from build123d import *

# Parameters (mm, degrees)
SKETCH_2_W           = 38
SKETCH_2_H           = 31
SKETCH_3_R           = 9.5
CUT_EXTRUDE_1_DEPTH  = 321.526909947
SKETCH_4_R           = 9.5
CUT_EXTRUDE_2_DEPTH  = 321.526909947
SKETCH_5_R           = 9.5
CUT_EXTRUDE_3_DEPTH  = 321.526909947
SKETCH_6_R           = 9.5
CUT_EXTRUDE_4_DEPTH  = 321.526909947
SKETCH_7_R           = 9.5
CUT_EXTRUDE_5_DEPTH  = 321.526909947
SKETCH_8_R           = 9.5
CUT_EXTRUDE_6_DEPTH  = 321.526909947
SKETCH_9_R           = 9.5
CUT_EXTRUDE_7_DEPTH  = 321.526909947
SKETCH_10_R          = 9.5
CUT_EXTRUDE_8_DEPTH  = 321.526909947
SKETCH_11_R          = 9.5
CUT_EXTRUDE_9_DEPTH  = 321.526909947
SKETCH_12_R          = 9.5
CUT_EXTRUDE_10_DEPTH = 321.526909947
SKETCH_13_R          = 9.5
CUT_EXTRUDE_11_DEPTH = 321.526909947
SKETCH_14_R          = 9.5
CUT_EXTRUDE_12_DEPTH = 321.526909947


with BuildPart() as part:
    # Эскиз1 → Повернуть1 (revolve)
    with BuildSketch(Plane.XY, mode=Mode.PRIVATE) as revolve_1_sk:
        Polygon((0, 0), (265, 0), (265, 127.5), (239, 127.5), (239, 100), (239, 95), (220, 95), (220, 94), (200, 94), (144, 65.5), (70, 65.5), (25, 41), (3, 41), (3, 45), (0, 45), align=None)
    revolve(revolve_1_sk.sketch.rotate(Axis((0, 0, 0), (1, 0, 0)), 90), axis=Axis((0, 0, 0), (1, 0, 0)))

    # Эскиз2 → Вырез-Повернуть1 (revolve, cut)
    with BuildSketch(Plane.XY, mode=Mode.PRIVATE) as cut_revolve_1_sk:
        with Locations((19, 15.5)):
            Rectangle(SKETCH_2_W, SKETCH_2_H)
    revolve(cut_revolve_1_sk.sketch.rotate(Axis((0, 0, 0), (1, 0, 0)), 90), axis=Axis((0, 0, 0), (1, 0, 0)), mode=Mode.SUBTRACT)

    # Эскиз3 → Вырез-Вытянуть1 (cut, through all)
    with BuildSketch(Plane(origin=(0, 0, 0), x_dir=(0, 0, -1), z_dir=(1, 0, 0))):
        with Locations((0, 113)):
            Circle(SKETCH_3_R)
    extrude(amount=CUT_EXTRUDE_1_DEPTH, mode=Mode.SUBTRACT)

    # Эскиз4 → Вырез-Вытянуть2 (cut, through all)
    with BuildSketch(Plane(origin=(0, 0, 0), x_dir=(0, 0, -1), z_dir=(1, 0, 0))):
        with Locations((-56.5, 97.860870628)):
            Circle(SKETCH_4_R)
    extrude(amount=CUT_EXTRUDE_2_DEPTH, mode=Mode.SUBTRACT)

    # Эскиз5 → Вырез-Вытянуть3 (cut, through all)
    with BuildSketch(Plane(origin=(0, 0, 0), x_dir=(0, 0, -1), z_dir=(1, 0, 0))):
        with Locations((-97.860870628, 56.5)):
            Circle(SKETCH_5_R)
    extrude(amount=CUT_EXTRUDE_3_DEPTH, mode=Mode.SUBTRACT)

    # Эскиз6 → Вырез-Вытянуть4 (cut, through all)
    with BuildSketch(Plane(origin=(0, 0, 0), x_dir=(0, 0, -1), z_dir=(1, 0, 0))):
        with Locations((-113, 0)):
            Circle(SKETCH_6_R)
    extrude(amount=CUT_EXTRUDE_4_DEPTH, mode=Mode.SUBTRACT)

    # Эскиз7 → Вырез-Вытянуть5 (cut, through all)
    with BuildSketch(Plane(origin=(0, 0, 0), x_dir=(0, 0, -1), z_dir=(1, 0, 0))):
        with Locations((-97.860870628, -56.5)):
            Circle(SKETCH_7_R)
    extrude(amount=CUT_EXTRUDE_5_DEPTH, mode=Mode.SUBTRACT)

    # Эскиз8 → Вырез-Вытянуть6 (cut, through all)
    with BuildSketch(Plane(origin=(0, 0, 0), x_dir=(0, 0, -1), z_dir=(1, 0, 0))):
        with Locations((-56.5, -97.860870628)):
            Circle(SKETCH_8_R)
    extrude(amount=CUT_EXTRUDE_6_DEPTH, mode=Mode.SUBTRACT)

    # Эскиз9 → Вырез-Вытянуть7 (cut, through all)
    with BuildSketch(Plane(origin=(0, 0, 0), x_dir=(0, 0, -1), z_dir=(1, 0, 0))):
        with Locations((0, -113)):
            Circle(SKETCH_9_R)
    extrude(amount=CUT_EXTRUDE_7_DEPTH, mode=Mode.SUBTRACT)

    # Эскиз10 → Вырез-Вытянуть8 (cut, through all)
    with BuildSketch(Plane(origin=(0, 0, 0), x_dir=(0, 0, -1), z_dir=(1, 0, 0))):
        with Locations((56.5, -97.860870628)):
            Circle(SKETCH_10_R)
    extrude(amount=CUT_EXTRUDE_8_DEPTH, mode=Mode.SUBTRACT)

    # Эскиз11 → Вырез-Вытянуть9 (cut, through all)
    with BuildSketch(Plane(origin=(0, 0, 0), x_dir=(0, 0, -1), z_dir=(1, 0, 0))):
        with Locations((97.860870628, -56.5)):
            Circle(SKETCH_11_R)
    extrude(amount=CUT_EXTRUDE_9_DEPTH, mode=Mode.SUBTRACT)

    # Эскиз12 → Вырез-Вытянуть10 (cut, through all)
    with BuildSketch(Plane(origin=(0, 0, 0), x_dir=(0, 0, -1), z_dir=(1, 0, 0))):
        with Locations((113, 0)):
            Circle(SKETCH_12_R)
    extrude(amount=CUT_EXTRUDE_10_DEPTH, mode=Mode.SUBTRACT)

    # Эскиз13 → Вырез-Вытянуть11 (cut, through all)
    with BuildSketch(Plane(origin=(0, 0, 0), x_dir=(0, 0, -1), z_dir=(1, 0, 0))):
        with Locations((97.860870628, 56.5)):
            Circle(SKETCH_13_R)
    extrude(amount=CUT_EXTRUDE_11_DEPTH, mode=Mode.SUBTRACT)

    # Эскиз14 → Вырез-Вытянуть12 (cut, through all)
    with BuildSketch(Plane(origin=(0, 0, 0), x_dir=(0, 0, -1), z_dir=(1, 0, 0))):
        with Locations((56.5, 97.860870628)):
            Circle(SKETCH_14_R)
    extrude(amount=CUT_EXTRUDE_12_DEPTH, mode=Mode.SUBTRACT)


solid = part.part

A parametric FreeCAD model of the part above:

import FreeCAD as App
import Part
import Sketcher


def add_polygon(sketch, points):
    """Adds a closed chain of lines whose ends are joined by coincident constraints."""
    first, n = sketch.GeometryCount, len(points)
    for a, b in zip(points, points[1:] + points[:1]):
        sketch.addGeometry(Part.LineSegment(App.Vector(*a, 0), App.Vector(*b, 0)), False)
    for i in range(n):
        sketch.addConstraint(Sketcher.Constraint("Coincident", first + i, 2, first + (i + 1) % n, 1))

doc = App.newDocument("Part")
body = doc.addObject("PartDesign::Body", "Body")

sketch1 = body.newObject("Sketcher::SketchObject", "Sketch")
sketch1.AttachmentSupport = (doc.getObject("XY_Plane"), [""])
sketch1.MapMode = "FlatFace"
add_polygon(sketch1, [(0, 0), (265, 0), (265, 127.5), (239, 127.5), (239, 95), (220, 95), (220, 94), (200, 94), (144, 65.5), (70, 65.5), (25, 41), (3, 41), (3, 45), (0, 45)])
sketch1.addConstraint([
    Sketcher.Constraint("Horizontal", 0),
    Sketcher.Constraint("Vertical", 1),
    Sketcher.Constraint("Horizontal", 2),
    Sketcher.Constraint("Vertical", 3),
    Sketcher.Constraint("Horizontal", 4),
    Sketcher.Constraint("Vertical", 5),
    Sketcher.Constraint("Horizontal", 6),
    Sketcher.Constraint("Horizontal", 8),
    Sketcher.Constraint("Horizontal", 10),
    Sketcher.Constraint("Vertical", 11),
    Sketcher.Constraint("Horizontal", 12),
    Sketcher.Constraint("Vertical", 13),
    Sketcher.Constraint("Coincident", 13, 2, -1, 1),
    Sketcher.Constraint("DistanceX", 0, 1, 0, 2, 265.0),
    Sketcher.Constraint("DistanceX", 2, 2, 2, 1, 26.0),
    Sketcher.Constraint("DistanceX", 4, 2, 4, 1, 19.0),
    Sketcher.Constraint("DistanceX", 6, 2, 6, 1, 20.0),
    Sketcher.Constraint("DistanceX", 8, 2, 8, 1, 74.0),
    Sketcher.Constraint("DistanceX", 10, 2, 10, 1, 22.0),
    Sketcher.Constraint("DistanceX", 12, 2, 12, 1, 3.0),
    Sketcher.Constraint("DistanceY", 5, 2, 5, 1, 1.0),
    Sketcher.Constraint("DistanceY", 11, 1, 11, 2, 4.0),
    Sketcher.Constraint("DistanceY", 13, 2, 13, 1, 45.0),
    Sketcher.Constraint("DistanceY", 1, 1, 1, 2, 127.5),
    Sketcher.Constraint("DistanceY", 3, 2, 3, 1, 32.5),
    Sketcher.Constraint("DistanceX", -1, 1, 7, 2, 144.0),
    Sketcher.Constraint("DistanceY", 7, 2, 2, 2, 62.0),
])
revolution = body.newObject("PartDesign::Revolution", "Revolution")
revolution.Profile = sketch1
revolution.ReferenceAxis = (sketch1, ["H_Axis"])
revolution.Angle = 360

sketch2 = body.newObject("Sketcher::SketchObject", "Sketch001")
sketch2.AttachmentSupport = (doc.getObject("XY_Plane"), [""])
sketch2.MapMode = "FlatFace"
add_polygon(sketch2, [(0, 31), (0, 0), (38, 0), (38, 31)])
sketch2.addConstraint([
    Sketcher.Constraint("Vertical", 0),
    Sketcher.Constraint("Horizontal", 1),
    Sketcher.Constraint("Vertical", 2),
    Sketcher.Constraint("Horizontal", 3),
    Sketcher.Constraint("Coincident", 0, 2, -1, 1),
    Sketcher.Constraint("DistanceX", 1, 1, 1, 2, 38.0),
    Sketcher.Constraint("DistanceY", 0, 2, 0, 1, 31.0),
])
groove = body.newObject("PartDesign::Groove", "Groove")
groove.Profile = sketch2
groove.ReferenceAxis = (sketch2, ["H_Axis"])
groove.Angle = 360

sketch3 = body.newObject("Sketcher::SketchObject", "Sketch002")
sketch3.AttachmentSupport = (doc.getObject("YZ_Plane"), [""])
sketch3.MapMode = "FlatFace"
sketch3.addGeometry(Part.Circle(App.Vector(113, 0, 0), App.Vector(0, 0, 1), 10), False)
sketch3.addConstraint([
    Sketcher.Constraint("PointOnObject", 0, 3, -1),
    Sketcher.Constraint("Diameter", 0, 19.0),
    Sketcher.Constraint("DistanceX", -1, 1, 0, 3, 113.0),
])
pocket1 = body.newObject("PartDesign::Pocket", "Pocket")
pocket1.Profile = sketch3
pocket1.Type = "ThroughAll"
pocket1.Reversed = True

sketch4 = body.newObject("Sketcher::SketchObject", "Sketch003")
sketch4.AttachmentSupport = (doc.getObject("YZ_Plane"), [""])
sketch4.MapMode = "FlatFace"
sketch4.addGeometry(Part.Circle(App.Vector(98, 56, 0), App.Vector(0, 0, 1), 10), False)
sketch4.addConstraint([
    Sketcher.Constraint("Diameter", 0, 19.0),
    Sketcher.Constraint("DistanceY", -1, 1, 0, 3, 56.5),
    Sketcher.Constraint("DistanceX", -1, 1, 0, 3, 97.860871),
])
pocket2 = body.newObject("PartDesign::Pocket", "Pocket001")
pocket2.Profile = sketch4
pocket2.Type = "ThroughAll"
pocket2.Reversed = True

sketch5 = body.newObject("Sketcher::SketchObject", "Sketch004")
sketch5.AttachmentSupport = (doc.getObject("YZ_Plane"), [""])
sketch5.MapMode = "FlatFace"
sketch5.addGeometry(Part.Circle(App.Vector(56, 98, 0), App.Vector(0, 0, 1), 10), False)
sketch5.addConstraint([
    Sketcher.Constraint("Diameter", 0, 19.0),
    Sketcher.Constraint("DistanceX", -1, 1, 0, 3, 56.5),
    Sketcher.Constraint("DistanceY", -1, 1, 0, 3, 97.860871),
])
pocket3 = body.newObject("PartDesign::Pocket", "Pocket002")
pocket3.Profile = sketch5
pocket3.Type = "ThroughAll"
pocket3.Reversed = True

sketch6 = body.newObject("Sketcher::SketchObject", "Sketch005")
sketch6.AttachmentSupport = (doc.getObject("YZ_Plane"), [""])
sketch6.MapMode = "FlatFace"
sketch6.addGeometry(Part.Circle(App.Vector(0, 113, 0), App.Vector(0, 0, 1), 10), False)
sketch6.addConstraint([
    Sketcher.Constraint("PointOnObject", 0, 3, -2),
    Sketcher.Constraint("Diameter", 0, 19.0),
    Sketcher.Constraint("DistanceY", -1, 1, 0, 3, 113.0),
])
pocket4 = body.newObject("PartDesign::Pocket", "Pocket003")
pocket4.Profile = sketch6
pocket4.Type = "ThroughAll"
pocket4.Reversed = True

sketch7 = body.newObject("Sketcher::SketchObject", "Sketch006")
sketch7.AttachmentSupport = (doc.getObject("YZ_Plane"), [""])
sketch7.MapMode = "FlatFace"
sketch7.addGeometry(Part.Circle(App.Vector(-56, 98, 0), App.Vector(0, 0, 1), 10), False)
sketch7.addConstraint([
    Sketcher.Constraint("Diameter", 0, 19.0),
    Sketcher.Constraint("DistanceX", 0, 3, -1, 1, 56.5),
    Sketcher.Constraint("DistanceY", -1, 1, 0, 3, 97.860871),
])
pocket5 = body.newObject("PartDesign::Pocket", "Pocket004")
pocket5.Profile = sketch7
pocket5.Type = "ThroughAll"
pocket5.Reversed = True

sketch8 = body.newObject("Sketcher::SketchObject", "Sketch007")
sketch8.AttachmentSupport = (doc.getObject("YZ_Plane"), [""])
sketch8.MapMode = "FlatFace"
sketch8.addGeometry(Part.Circle(App.Vector(-98, 56, 0), App.Vector(0, 0, 1), 10), False)
sketch8.addConstraint([
    Sketcher.Constraint("Diameter", 0, 19.0),
    Sketcher.Constraint("DistanceY", -1, 1, 0, 3, 56.5),
    Sketcher.Constraint("DistanceX", 0, 3, -1, 1, 97.860871),
])
pocket6 = body.newObject("PartDesign::Pocket", "Pocket005")
pocket6.Profile = sketch8
pocket6.Type = "ThroughAll"
pocket6.Reversed = True

sketch9 = body.newObject("Sketcher::SketchObject", "Sketch008")
sketch9.AttachmentSupport = (doc.getObject("YZ_Plane"), [""])
sketch9.MapMode = "FlatFace"
sketch9.addGeometry(Part.Circle(App.Vector(-113, 0, 0), App.Vector(0, 0, 1), 10), False)
sketch9.addConstraint([
    Sketcher.Constraint("PointOnObject", 0, 3, -1),
    Sketcher.Constraint("Diameter", 0, 19.0),
    Sketcher.Constraint("DistanceX", 0, 3, -1, 1, 113.0),
])
pocket7 = body.newObject("PartDesign::Pocket", "Pocket006")
pocket7.Profile = sketch9
pocket7.Type = "ThroughAll"
pocket7.Reversed = True

sketch10 = body.newObject("Sketcher::SketchObject", "Sketch009")
sketch10.AttachmentSupport = (doc.getObject("YZ_Plane"), [""])
sketch10.MapMode = "FlatFace"
sketch10.addGeometry(Part.Circle(App.Vector(-98, -56, 0), App.Vector(0, 0, 1), 10), False)
sketch10.addConstraint([
    Sketcher.Constraint("Diameter", 0, 19.0),
    Sketcher.Constraint("DistanceY", 0, 3, -1, 1, 56.5),
    Sketcher.Constraint("DistanceX", 0, 3, -1, 1, 97.860871),
])
pocket8 = body.newObject("PartDesign::Pocket", "Pocket007")
pocket8.Profile = sketch10
pocket8.Type = "ThroughAll"
pocket8.Reversed = True

sketch11 = body.newObject("Sketcher::SketchObject", "Sketch010")
sketch11.AttachmentSupport = (doc.getObject("YZ_Plane"), [""])
sketch11.MapMode = "FlatFace"
sketch11.addGeometry(Part.Circle(App.Vector(-56, -98, 0), App.Vector(0, 0, 1), 10), False)
sketch11.addConstraint([
    Sketcher.Constraint("Diameter", 0, 19.0),
    Sketcher.Constraint("DistanceX", 0, 3, -1, 1, 56.5),
    Sketcher.Constraint("DistanceY", 0, 3, -1, 1, 97.860871),
])
pocket9 = body.newObject("PartDesign::Pocket", "Pocket008")
pocket9.Profile = sketch11
pocket9.Type = "ThroughAll"
pocket9.Reversed = True

sketch12 = body.newObject("Sketcher::SketchObject", "Sketch011")
sketch12.AttachmentSupport = (doc.getObject("YZ_Plane"), [""])
sketch12.MapMode = "FlatFace"
sketch12.addGeometry(Part.Circle(App.Vector(0, -113, 0), App.Vector(0, 0, 1), 10), False)
sketch12.addConstraint([
    Sketcher.Constraint("PointOnObject", 0, 3, -2),
    Sketcher.Constraint("Diameter", 0, 19.0),
    Sketcher.Constraint("DistanceY", 0, 3, -1, 1, 113.0),
])
pocket10 = body.newObject("PartDesign::Pocket", "Pocket009")
pocket10.Profile = sketch12
pocket10.Type = "ThroughAll"
pocket10.Reversed = True

sketch13 = body.newObject("Sketcher::SketchObject", "Sketch012")
sketch13.AttachmentSupport = (doc.getObject("YZ_Plane"), [""])
sketch13.MapMode = "FlatFace"
sketch13.addGeometry(Part.Circle(App.Vector(56, -98, 0), App.Vector(0, 0, 1), 10), False)
sketch13.addConstraint([
    Sketcher.Constraint("Diameter", 0, 19.0),
    Sketcher.Constraint("DistanceX", -1, 1, 0, 3, 56.5),
    Sketcher.Constraint("DistanceY", 0, 3, -1, 1, 97.860871),
])
pocket11 = body.newObject("PartDesign::Pocket", "Pocket010")
pocket11.Profile = sketch13
pocket11.Type = "ThroughAll"
pocket11.Reversed = True

sketch14 = body.newObject("Sketcher::SketchObject", "Sketch013")
sketch14.AttachmentSupport = (doc.getObject("YZ_Plane"), [""])
sketch14.MapMode = "FlatFace"
sketch14.addGeometry(Part.Circle(App.Vector(98, -56, 0), App.Vector(0, 0, 1), 10), False)
sketch14.addConstraint([
    Sketcher.Constraint("Diameter", 0, 19.0),
    Sketcher.Constraint("DistanceY", 0, 3, -1, 1, 56.5),
    Sketcher.Constraint("DistanceX", -1, 1, 0, 3, 97.860871),
])
pocket12 = body.newObject("PartDesign::Pocket", "Pocket011")
pocket12.Profile = sketch14
pocket12.Type = "ThroughAll"
pocket12.Reversed = True

doc.recompute()
